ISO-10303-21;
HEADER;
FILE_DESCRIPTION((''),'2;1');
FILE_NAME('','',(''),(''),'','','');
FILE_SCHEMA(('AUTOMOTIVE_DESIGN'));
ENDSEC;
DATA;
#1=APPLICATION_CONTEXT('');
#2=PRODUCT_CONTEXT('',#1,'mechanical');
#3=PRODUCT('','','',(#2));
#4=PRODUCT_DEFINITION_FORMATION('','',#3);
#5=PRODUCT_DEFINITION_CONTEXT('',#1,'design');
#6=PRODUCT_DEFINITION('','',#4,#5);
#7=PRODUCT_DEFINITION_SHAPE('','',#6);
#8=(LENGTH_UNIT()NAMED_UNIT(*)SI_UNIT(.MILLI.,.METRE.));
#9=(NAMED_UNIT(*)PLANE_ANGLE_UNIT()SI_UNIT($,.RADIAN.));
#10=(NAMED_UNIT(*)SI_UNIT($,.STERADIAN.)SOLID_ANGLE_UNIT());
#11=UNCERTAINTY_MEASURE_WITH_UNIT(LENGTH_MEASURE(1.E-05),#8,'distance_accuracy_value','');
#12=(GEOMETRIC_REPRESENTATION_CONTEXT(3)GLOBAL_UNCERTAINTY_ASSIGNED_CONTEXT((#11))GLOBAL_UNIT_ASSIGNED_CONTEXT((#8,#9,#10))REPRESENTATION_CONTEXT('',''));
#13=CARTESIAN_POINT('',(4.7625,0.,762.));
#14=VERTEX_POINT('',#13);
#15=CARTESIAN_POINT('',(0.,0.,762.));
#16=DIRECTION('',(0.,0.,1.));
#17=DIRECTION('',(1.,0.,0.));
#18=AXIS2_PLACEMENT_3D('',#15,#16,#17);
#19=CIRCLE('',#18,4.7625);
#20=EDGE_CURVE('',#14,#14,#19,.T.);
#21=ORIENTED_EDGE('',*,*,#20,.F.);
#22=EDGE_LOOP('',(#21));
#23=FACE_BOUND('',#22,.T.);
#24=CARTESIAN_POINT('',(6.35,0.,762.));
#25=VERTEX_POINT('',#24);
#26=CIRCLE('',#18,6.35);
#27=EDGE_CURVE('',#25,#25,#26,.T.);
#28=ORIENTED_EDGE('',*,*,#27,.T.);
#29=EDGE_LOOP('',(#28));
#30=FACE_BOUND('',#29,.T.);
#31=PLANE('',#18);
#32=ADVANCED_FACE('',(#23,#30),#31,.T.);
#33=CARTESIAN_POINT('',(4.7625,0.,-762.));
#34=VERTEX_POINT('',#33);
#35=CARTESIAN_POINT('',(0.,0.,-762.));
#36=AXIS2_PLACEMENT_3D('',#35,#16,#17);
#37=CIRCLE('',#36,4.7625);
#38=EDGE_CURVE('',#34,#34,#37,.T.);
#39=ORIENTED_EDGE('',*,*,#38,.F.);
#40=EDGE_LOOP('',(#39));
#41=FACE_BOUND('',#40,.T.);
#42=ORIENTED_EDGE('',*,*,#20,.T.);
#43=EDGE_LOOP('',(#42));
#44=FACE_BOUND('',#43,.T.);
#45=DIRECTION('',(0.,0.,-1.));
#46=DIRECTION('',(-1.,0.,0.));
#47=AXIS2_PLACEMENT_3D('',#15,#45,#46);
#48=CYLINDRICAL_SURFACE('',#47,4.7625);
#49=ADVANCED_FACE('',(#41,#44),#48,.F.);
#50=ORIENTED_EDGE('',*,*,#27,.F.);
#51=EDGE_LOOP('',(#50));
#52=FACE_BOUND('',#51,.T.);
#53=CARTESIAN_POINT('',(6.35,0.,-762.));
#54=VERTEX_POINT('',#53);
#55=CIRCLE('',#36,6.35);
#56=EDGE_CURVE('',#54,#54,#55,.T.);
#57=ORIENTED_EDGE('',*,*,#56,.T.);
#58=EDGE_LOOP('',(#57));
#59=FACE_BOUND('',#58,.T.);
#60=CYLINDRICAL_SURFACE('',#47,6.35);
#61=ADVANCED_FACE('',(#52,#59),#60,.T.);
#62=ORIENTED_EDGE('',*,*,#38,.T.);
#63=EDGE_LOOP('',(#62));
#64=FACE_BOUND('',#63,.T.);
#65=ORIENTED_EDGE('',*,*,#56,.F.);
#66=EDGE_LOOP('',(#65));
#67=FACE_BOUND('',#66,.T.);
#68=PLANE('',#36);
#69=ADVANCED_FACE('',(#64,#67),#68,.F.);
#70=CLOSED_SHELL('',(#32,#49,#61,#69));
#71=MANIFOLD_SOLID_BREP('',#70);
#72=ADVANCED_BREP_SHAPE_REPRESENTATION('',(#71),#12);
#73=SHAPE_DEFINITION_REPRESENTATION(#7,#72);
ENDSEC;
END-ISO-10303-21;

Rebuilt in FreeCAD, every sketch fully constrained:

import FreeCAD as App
import Part
import Sketcher

V = App.Vector
Q = App.Units.Quantity

doc = App.newDocument("Part")
body = doc.addObject("PartDesign::Body", "Body")

# Sketch on XY plane
sketch1 = body.newObject("Sketcher::SketchObject", "Sketch")
sketch1.AttachmentSupport = (doc.getObject("XY_Plane"), [""])
sketch1.MapMode = "FlatFace"
sketch1.addGeometry(Part.Circle(V(0, 0, 0), V(0, 0, 1), 6.3), False)
sketch1.addGeometry(Part.Circle(V(0, 0, 0), V(0, 0, 1), 4.8), False)
sketch1.addConstraint(Sketcher.Constraint("Coincident", 0, 3, -1, 1))
sketch1.addConstraint(Sketcher.Constraint("Coincident", 1, 3, -1, 1))
sketch1.addConstraint(Sketcher.Constraint("Diameter", 0, Q("0.5 in")))
sketch1.addConstraint(Sketcher.Constraint("Diameter", 1, Q("0.375 in")))
pad1 = body.newObject("PartDesign::Pad", "Pad")
pad1.Profile = sketch1
pad1.Length = Q("60 in")
pad1.Midplane = True

doc.recompute()
